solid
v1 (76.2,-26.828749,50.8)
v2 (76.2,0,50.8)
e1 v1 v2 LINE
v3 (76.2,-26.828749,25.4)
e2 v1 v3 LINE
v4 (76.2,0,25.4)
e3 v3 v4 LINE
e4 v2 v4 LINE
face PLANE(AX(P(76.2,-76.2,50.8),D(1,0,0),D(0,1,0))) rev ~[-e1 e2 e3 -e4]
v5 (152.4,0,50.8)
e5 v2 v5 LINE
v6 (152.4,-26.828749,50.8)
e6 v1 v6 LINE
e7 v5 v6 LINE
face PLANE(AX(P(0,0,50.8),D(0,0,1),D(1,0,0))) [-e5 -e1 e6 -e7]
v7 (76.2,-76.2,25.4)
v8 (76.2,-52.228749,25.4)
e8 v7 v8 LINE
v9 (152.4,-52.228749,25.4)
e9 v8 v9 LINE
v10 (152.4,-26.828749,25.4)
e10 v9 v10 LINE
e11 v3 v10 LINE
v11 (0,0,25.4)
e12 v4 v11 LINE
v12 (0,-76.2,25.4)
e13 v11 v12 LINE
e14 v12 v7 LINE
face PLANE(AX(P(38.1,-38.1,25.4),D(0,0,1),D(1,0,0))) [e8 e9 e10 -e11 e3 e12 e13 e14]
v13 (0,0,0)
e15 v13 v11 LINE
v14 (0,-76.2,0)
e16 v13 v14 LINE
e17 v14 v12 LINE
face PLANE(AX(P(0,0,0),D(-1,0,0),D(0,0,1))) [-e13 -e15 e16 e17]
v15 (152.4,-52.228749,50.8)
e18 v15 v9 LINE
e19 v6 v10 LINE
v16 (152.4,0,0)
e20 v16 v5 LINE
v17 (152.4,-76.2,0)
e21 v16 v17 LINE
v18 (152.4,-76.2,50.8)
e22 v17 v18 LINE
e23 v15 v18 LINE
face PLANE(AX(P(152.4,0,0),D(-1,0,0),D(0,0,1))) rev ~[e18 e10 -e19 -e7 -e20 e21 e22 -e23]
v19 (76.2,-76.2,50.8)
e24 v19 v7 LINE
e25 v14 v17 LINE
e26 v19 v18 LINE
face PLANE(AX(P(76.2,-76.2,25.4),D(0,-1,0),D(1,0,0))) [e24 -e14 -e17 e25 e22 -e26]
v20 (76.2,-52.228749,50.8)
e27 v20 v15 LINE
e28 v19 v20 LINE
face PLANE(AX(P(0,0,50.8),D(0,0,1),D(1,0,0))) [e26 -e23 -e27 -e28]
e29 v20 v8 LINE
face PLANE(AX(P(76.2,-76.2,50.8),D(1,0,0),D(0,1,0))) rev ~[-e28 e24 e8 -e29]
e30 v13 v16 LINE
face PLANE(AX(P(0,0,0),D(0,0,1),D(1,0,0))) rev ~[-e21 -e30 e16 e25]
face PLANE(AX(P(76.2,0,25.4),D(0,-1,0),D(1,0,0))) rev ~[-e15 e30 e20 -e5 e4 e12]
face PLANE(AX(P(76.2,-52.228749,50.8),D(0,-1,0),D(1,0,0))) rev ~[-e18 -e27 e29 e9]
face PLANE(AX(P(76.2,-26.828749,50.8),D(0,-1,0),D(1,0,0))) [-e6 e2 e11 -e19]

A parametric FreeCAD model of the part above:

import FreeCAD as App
import Part
import Sketcher
Q = App.Units.Quantity


def add_polygon(sketch, points):
    """Adds a closed chain of lines whose ends are joined by coincident constraints."""
    first, n = sketch.GeometryCount, len(points)
    for a, b in zip(points, points[1:] + points[:1]):
        sketch.addGeometry(Part.LineSegment(App.Vector(*a, 0), App.Vector(*b, 0)), False)
    for i in range(n):
        sketch.addConstraint(Sketcher.Constraint("Coincident", first + i, 2, first + (i + 1) % n, 1))

doc = App.newDocument("Part")
body = doc.addObject("PartDesign::Body", "Body")

# Sketch on XZ plane
sketch1 = body.newObject("Sketcher::SketchObject", "Sketch")
sketch1.AttachmentSupport = (doc.getObject("XZ_Plane"), [""])
sketch1.MapMode = "FlatFace"
add_polygon(sketch1, [(0, 51), (0, 0), (152, 0), (152, 51)])  # lines 0-3
sketch1.addConstraint(Sketcher.Constraint("Vertical", 0))
sketch1.addConstraint(Sketcher.Constraint("Horizontal", 1))
sketch1.addConstraint(Sketcher.Constraint("Vertical", 2))
sketch1.addConstraint(Sketcher.Constraint("Horizontal", 3))
sketch1.addConstraint(Sketcher.Constraint("Coincident", 0, 2, -1, 1))
sketch1.addConstraint(Sketcher.Constraint("DistanceX", 1, 1, 1, 2, Q("6 in")))
sketch1.addConstraint(Sketcher.Constraint("DistanceY", 0, 2, 0, 1, Q("2 in")))
pad1 = body.newObject("PartDesign::Pad", "Pad")
pad1.Profile = sketch1
pad1.Length = Q("3 in")

# Sketch on XY plane
sketch2 = body.newObject("Sketcher::SketchObject", "Sketch001")
sketch2.AttachmentSupport = (doc.getObject("XY_Plane"), [""])
sketch2.MapMode = "FlatFace"
sketch2.AttachmentOffset = App.Placement(App.Vector(0, 0, 2 * 25.4), App.Rotation())
add_polygon(sketch2, [(76, -27), (76, -52), (152, -52), (152, -27)])  # lines 0-3
sketch2.addConstraint(Sketcher.Constraint("Vertical", 0))
sketch2.addConstraint(Sketcher.Constraint("Horizontal", 1))
sketch2.addConstraint(Sketcher.Constraint("Vertical", 2))
sketch2.addConstraint(Sketcher.Constraint("Horizontal", 3))
sketch2.addConstraint(Sketcher.Constraint("DistanceX", 1, 1, 1, 2, Q("3 in")))
sketch2.addConstraint(Sketcher.Constraint("DistanceY", 0, 2, 0, 1, Q("1 in")))
sketch2.addConstraint(Sketcher.Constraint("DistanceX", -1, 1, 0, 2, Q("3 in")))
sketch2.addConstraint(Sketcher.Constraint("DistanceY", 0, 2, -1, 1, Q("52.228749 mm")))
pocket1 = body.newObject("PartDesign::Pocket", "Pocket")
pocket1.Profile = sketch2
pocket1.Length = Q("1 in")

# Sketch on XY plane
sketch3 = body.newObject("Sketcher::SketchObject", "Sketch002")
sketch3.AttachmentSupport = (doc.getObject("XY_Plane"), [""])
sketch3.MapMode = "FlatFace"
sketch3.AttachmentOffset = App.Placement(App.Vector(0, 0, 2 * 25.4), App.Rotation())
add_polygon(sketch3, [(76, 0), (0, 0), (0, -76), (76, -76)])  # lines 0-3
sketch3.addConstraint(Sketcher.Constraint("Horizontal", 0))
sketch3.addConstraint(Sketcher.Constraint("Vertical", 1))
sketch3.addConstraint(Sketcher.Constraint("Horizontal", 2))
sketch3.addConstraint(Sketcher.Constraint("Vertical", 3))
sketch3.addConstraint(Sketcher.Constraint("Coincident", 0, 2, -1, 1))
sketch3.addConstraint(Sketcher.Constraint("Equal", 2, 1))
sketch3.addConstraint(Sketcher.Constraint("DistanceX", 0, 2, 0, 1, Q("3 in")))
pocket2 = body.newObject("PartDesign::Pocket", "Pocket001")
pocket2.Profile = sketch3
pocket2.Length = Q("1 in")

doc.recompute()
